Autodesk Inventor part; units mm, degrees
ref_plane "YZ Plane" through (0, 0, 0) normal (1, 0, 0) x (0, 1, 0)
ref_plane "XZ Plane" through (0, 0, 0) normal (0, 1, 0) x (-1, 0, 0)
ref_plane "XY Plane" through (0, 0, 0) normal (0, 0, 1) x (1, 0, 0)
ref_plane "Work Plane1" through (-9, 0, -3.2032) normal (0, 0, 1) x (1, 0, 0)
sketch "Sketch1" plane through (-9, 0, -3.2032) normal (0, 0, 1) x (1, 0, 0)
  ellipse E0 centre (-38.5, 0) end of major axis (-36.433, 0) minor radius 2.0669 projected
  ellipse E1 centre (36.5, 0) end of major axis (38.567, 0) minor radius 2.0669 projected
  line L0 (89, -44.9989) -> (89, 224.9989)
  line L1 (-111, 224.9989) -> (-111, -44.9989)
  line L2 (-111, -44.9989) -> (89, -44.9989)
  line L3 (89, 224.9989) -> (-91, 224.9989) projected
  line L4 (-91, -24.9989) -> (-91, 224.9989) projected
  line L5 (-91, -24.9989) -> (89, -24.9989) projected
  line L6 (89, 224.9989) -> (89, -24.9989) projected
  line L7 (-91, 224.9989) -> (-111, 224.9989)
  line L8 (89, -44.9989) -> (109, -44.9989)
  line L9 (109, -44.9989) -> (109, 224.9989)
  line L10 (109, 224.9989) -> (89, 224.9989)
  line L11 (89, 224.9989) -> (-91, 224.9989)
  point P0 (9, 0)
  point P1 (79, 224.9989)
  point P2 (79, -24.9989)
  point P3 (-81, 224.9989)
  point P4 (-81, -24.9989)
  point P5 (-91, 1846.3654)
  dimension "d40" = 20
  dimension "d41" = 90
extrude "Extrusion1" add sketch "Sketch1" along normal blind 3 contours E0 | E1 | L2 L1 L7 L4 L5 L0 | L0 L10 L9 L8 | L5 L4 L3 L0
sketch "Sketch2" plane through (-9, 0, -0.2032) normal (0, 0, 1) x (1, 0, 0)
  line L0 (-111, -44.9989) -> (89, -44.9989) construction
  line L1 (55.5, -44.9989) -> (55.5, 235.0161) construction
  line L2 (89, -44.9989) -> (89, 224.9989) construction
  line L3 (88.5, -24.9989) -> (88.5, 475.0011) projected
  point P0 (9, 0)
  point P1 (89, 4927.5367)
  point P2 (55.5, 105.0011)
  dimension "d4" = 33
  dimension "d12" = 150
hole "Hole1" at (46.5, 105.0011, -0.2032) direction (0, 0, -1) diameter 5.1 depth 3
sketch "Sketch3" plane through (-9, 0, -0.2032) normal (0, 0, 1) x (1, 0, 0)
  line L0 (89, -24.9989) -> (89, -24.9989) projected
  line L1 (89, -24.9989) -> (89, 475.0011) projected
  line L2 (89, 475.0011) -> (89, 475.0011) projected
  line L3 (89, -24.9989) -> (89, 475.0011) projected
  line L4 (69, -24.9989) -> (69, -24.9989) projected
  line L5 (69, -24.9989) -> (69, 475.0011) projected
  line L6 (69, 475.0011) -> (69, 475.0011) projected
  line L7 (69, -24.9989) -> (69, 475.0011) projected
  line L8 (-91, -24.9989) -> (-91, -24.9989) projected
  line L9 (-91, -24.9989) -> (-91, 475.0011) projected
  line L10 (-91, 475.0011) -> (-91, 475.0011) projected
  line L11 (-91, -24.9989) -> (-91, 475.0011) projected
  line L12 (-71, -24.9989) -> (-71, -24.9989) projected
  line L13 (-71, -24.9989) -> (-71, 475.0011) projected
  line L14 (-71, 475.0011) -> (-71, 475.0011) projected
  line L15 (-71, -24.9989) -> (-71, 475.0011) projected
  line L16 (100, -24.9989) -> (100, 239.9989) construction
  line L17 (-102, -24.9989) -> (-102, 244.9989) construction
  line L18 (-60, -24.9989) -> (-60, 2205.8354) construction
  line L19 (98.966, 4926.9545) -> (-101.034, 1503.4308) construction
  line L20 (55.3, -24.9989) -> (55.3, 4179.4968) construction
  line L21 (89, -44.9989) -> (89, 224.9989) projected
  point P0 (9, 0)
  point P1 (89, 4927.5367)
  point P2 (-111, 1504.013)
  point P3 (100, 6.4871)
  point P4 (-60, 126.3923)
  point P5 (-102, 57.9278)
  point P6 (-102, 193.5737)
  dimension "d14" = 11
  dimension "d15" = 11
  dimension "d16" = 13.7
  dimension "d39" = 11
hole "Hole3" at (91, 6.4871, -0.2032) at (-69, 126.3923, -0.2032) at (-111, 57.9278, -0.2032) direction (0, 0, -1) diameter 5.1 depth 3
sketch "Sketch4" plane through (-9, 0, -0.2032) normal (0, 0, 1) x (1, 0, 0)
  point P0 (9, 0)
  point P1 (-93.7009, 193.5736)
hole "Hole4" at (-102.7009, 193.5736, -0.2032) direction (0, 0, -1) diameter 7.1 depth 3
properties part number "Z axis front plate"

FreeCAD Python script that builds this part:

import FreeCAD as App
import Part
import Sketcher

V = App.Vector
Q = App.Units.Quantity

doc = App.newDocument("Part")
body = doc.addObject("PartDesign::Body", "Body")

# Sketch on XY plane
sketch1 = body.newObject("Sketcher::SketchObject", "Sketch")
sketch1.AttachmentSupport = (doc.getObject("XY_Plane"), [""])
sketch1.MapMode = "FlatFace"
sketch1.AttachmentOffset = App.Placement(V(0, 0, -3.2032), App.Rotation())
sketch1.addGeometry(Part.LineSegment(V(-120, 225, 0), V(-120, -45, 0)), False)
sketch1.addGeometry(Part.LineSegment(V(-120, -45, 0), V(100, -45, 0)), False)
sketch1.addGeometry(Part.LineSegment(V(100, -45, 0), V(100, 225, 0)), False)
sketch1.addGeometry(Part.LineSegment(V(100, 225, 0), V(-120, 225, 0)), False)
sketch1.addConstraint(Sketcher.Constraint("Coincident", 0, 2, 1, 1))
sketch1.addConstraint(Sketcher.Constraint("Coincident", 1, 2, 2, 1))
sketch1.addConstraint(Sketcher.Constraint("Coincident", 2, 2, 3, 1))
sketch1.addConstraint(Sketcher.Constraint("Coincident", 3, 2, 0, 1))
sketch1.addConstraint(Sketcher.Constraint("Vertical", 0))
sketch1.addConstraint(Sketcher.Constraint("Horizontal", 1))
sketch1.addConstraint(Sketcher.Constraint("Vertical", 2))
sketch1.addConstraint(Sketcher.Constraint("Horizontal", 3))
sketch1.addConstraint(Sketcher.Constraint("DistanceX", 1, 1, 1, 2, Q("220 mm")))
sketch1.addConstraint(Sketcher.Constraint("DistanceX", 0, 2, -1, 1, Q("120 mm")))
sketch1.addConstraint(Sketcher.Constraint("DistanceY", 0, 2, 0, 1, Q("269.9978 mm")))
sketch1.addConstraint(Sketcher.Constraint("DistanceY", 0, 2, -1, 1, Q("44.999 mm")))
pad1 = body.newObject("PartDesign::Pad", "Pad")
pad1.Profile = sketch1
pad1.Length = 3

# Sketch on XY plane
sketch2 = body.newObject("Sketcher::SketchObject", "Sketch001")
sketch2.AttachmentSupport = (doc.getObject("XY_Plane"), [""])
sketch2.MapMode = "FlatFace"
sketch2.AttachmentOffset = App.Placement(V(0, 0, -0.2032), App.Rotation())
sketch2.addGeometry(Part.Circle(V(46.5, 105, 0), V(0, 0, 1), 2.5), False)
sketch2.addConstraint(Sketcher.Constraint("Diameter", 0, Q("5.1 mm")))
sketch2.addConstraint(Sketcher.Constraint("DistanceX", -1, 1, 0, 3, Q("46.5 mm")))
sketch2.addConstraint(Sketcher.Constraint("DistanceY", -1, 1, 0, 3, Q("105.001 mm")))
doc.recompute()
hole = body.newObject("PartDesign::Hole", "Hole")
hole.Profile = sketch2
hole.ThreadType = "None"
hole.Diameter = 5.1
hole.DepthType = "Dimension"
hole.Depth = 3
hole.DrillPoint = "Flat"

# Sketch on XY plane
sketch3 = body.newObject("Sketcher::SketchObject", "Sketch002")
sketch3.AttachmentSupport = (doc.getObject("XY_Plane"), [""])
sketch3.MapMode = "FlatFace"
sketch3.AttachmentOffset = App.Placement(V(0, 0, -0.2032), App.Rotation())
sketch3.addGeometry(Part.Circle(V(91, 6.5, 0), V(0, 0, 1), 2.5), False)
sketch3.addGeometry(Part.Circle(V(-69, 126.4, 0), V(0, 0, 1), 2.5), False)
sketch3.addGeometry(Part.Circle(V(-111, 57.9, 0), V(0, 0, 1), 2.5), False)
sketch3.addConstraint(Sketcher.Constraint("Equal", 0, 1))
sketch3.addConstraint(Sketcher.Constraint("Equal", 1, 2))
sketch3.addConstraint(Sketcher.Constraint("Diameter", 0, Q("5.1 mm")))
sketch3.addConstraint(Sketcher.Constraint("DistanceX", -1, 1, 0, 3, Q("91 mm")))
sketch3.addConstraint(Sketcher.Constraint("DistanceX", 1, 3, -1, 1, Q("69 mm")))
sketch3.addConstraint(Sketcher.Constraint("DistanceX", 2, 3, -1, 1, Q("111 mm")))
sketch3.addConstraint(Sketcher.Constraint("DistanceY", -1, 1, 0, 3, Q("6.487 mm")))
sketch3.addConstraint(Sketcher.Constraint("DistanceY", -1, 1, 1, 3, Q("126.3923 mm")))
sketch3.addConstraint(Sketcher.Constraint("DistanceY", -1, 1, 2, 3, Q("57.9278 mm")))
doc.recompute()
hole2 = body.newObject("PartDesign::Hole", "Hole001")
hole2.Profile = sketch3
hole2.ThreadType = "None"
hole2.Diameter = 5.1
hole2.DepthType = "Dimension"
hole2.Depth = 3
hole2.DrillPoint = "Flat"

# Sketch on XY plane
sketch4 = body.newObject("Sketcher::SketchObject", "Sketch003")
sketch4.AttachmentSupport = (doc.getObject("XY_Plane"), [""])
sketch4.MapMode = "FlatFace"
sketch4.AttachmentOffset = App.Placement(V(0, 0, -0.2032), App.Rotation())
sketch4.addGeometry(Part.Circle(V(-102.7, 193.6, 0), V(0, 0, 1), 3.5), False)
sketch4.addConstraint(Sketcher.Constraint("Diameter", 0, Q("7.1 mm")))
sketch4.addConstraint(Sketcher.Constraint("DistanceX", 0, 3, -1, 1, Q("102.701 mm")))
sketch4.addConstraint(Sketcher.Constraint("DistanceY", -1, 1, 0, 3, Q("193.5736 mm")))
doc.recompute()
hole3 = body.newObject("PartDesign::Hole", "Hole002")
hole3.Profile = sketch4
hole3.ThreadType = "None"
hole3.Diameter = 7.1
hole3.DepthType = "Dimension"
hole3.Depth = 3
hole3.DrillPoint = "Flat"

doc.recompute()
